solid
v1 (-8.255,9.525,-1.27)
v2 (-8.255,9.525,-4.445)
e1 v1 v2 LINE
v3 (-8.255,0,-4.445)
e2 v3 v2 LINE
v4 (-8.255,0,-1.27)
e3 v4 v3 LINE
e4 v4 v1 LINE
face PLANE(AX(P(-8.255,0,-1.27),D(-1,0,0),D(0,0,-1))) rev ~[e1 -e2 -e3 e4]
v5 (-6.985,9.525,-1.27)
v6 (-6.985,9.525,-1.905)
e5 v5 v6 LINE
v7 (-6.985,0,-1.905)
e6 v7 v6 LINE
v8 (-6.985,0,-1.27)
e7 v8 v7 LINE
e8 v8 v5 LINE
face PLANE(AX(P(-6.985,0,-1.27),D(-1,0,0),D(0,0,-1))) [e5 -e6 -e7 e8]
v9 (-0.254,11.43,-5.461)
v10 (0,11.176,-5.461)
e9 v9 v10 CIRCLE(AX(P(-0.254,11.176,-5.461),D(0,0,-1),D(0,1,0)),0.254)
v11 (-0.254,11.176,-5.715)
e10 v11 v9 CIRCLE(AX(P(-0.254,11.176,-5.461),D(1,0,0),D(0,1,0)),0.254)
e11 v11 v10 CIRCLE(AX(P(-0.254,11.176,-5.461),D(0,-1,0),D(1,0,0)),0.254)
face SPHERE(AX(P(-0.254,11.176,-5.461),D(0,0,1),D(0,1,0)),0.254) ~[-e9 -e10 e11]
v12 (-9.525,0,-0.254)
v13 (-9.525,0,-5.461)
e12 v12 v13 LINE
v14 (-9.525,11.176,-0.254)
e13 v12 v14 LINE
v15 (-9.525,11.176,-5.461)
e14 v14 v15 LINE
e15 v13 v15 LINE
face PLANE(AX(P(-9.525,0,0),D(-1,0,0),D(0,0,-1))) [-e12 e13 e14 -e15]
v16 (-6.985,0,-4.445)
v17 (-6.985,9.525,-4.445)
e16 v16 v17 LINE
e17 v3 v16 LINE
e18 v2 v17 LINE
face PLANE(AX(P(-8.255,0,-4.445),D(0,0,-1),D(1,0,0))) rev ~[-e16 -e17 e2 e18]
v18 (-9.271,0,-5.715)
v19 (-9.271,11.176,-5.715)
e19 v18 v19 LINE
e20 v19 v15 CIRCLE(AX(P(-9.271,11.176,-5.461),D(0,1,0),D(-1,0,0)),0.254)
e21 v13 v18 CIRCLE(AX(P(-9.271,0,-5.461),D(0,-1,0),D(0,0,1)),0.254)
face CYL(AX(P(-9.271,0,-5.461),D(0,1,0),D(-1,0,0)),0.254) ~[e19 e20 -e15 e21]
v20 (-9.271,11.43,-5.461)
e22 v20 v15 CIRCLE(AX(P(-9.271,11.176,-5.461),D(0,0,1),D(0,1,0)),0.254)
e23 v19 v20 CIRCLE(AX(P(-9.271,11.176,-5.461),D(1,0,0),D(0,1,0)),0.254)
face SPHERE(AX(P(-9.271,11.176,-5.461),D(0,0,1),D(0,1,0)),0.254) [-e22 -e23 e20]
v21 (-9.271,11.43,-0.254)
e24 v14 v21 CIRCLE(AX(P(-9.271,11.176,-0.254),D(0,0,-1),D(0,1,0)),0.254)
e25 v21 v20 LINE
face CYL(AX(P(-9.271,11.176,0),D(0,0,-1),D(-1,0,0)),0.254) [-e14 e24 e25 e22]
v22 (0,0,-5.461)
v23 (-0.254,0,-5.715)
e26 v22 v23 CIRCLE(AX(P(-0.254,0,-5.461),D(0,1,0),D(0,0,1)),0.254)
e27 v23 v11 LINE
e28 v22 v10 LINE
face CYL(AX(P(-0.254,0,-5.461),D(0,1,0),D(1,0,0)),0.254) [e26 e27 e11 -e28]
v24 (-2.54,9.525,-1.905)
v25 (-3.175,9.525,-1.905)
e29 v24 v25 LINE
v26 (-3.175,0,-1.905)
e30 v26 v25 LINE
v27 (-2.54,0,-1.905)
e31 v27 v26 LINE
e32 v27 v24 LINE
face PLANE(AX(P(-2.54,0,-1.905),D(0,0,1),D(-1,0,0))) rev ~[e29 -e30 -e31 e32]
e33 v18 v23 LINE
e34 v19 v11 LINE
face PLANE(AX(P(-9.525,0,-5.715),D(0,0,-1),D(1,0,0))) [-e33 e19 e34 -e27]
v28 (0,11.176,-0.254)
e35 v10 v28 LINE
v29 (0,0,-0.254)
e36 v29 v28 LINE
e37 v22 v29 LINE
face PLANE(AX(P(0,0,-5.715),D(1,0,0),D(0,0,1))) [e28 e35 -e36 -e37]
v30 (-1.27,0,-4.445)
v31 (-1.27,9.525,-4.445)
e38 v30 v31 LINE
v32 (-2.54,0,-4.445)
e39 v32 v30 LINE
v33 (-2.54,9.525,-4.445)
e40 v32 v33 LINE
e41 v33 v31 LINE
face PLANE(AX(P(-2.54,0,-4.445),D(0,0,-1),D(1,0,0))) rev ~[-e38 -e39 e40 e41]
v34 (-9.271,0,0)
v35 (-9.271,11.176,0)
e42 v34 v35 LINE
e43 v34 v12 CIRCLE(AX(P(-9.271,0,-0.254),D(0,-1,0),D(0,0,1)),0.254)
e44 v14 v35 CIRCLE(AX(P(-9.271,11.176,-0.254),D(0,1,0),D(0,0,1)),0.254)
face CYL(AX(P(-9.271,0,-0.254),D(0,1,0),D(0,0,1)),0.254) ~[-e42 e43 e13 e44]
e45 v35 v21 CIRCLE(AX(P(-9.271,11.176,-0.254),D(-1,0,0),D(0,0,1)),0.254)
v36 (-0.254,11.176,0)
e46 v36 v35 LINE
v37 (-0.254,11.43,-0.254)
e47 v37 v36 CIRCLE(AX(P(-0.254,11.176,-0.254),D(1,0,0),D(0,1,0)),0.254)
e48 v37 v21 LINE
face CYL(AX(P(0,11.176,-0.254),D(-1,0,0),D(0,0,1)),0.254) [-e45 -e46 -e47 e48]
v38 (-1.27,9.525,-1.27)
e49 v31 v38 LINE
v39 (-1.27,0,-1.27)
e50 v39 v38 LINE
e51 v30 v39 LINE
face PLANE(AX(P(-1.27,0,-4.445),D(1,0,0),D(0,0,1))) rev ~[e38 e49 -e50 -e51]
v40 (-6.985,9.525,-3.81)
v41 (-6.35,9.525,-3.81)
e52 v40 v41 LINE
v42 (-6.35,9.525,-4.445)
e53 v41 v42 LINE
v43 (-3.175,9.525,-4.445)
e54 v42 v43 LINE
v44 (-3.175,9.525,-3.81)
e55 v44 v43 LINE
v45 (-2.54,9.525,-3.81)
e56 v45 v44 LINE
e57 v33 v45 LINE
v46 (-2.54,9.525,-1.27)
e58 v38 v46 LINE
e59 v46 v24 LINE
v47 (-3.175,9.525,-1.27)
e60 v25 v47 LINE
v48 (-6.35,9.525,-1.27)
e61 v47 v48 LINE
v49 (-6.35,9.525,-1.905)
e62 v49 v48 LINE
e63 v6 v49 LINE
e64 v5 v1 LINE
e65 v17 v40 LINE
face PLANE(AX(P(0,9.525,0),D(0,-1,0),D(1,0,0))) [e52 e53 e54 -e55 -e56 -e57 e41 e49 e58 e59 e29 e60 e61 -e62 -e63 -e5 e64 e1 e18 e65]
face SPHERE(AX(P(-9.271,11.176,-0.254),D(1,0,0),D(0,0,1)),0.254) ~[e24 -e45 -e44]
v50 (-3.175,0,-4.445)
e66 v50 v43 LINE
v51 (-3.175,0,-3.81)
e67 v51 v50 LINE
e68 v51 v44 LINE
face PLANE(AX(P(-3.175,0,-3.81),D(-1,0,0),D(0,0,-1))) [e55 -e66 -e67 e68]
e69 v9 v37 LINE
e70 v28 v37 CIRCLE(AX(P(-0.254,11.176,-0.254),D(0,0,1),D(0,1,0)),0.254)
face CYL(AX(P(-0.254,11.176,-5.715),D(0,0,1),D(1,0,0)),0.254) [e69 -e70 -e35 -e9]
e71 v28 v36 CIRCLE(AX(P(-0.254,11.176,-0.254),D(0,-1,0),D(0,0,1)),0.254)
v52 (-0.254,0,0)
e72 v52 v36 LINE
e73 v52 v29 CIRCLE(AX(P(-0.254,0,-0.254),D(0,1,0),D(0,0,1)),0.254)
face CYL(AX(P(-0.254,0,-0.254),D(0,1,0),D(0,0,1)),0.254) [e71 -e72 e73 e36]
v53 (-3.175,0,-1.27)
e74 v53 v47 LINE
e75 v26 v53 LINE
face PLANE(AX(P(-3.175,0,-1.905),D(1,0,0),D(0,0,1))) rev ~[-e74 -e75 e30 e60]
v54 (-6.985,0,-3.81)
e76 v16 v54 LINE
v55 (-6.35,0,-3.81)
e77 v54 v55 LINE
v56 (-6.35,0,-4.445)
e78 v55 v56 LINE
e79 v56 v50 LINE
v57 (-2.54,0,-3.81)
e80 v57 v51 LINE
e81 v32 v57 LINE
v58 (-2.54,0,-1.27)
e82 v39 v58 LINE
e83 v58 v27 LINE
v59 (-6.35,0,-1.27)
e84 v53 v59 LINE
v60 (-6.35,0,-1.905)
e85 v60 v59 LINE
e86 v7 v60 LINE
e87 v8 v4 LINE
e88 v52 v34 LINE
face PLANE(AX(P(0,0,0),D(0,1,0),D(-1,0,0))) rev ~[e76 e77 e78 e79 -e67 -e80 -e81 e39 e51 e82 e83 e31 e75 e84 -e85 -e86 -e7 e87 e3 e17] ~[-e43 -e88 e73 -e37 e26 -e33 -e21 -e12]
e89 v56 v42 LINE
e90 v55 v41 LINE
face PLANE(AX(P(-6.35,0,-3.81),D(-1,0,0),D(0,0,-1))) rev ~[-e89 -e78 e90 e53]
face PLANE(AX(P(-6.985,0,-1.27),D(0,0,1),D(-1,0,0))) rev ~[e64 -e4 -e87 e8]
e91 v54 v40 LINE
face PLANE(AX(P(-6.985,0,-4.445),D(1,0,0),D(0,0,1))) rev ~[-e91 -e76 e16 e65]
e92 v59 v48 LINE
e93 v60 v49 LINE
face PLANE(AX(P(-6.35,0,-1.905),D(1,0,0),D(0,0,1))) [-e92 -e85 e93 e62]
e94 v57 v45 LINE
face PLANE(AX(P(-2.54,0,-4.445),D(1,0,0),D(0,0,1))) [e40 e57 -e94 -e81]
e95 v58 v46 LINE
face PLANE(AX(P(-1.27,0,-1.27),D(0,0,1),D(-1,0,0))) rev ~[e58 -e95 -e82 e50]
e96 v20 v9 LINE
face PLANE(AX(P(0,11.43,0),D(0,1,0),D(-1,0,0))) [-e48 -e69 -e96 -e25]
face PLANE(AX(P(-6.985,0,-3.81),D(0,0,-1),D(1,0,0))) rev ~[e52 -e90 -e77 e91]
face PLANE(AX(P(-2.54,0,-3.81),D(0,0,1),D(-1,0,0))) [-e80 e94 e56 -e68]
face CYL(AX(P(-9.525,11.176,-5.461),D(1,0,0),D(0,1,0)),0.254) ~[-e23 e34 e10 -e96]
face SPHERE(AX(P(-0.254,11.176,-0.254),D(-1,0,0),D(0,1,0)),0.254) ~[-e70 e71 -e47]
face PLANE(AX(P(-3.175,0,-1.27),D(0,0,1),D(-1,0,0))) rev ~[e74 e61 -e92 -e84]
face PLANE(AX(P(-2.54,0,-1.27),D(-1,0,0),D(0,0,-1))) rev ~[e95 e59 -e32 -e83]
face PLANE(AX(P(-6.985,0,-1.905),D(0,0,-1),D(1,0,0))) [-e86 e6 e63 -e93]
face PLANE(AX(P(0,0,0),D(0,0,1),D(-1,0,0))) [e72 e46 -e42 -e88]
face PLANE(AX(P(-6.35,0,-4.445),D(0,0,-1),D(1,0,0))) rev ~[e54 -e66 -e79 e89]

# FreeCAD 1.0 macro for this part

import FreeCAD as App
import Part
import Sketcher

V = App.Vector
Q = App.Units.Quantity


def edges_at(feature, points):
    """Names of the edges that pass closest to the given points."""
    edges = feature.Shape.Edges
    near = lambda p: min(range(len(edges)), key=lambda i: edges[i].distToShape(Part.Vertex(*p))[0])
    return sorted({f"Edge{near(p) + 1}" for p in points})

doc = App.newDocument("Part")
body = doc.addObject("PartDesign::Body", "Body")

# Sketch on XZ plane
sketch1 = doc.addObject("Sketcher::SketchObject", "Sketch")
body.addObject(sketch1)
sketch1.AttachmentSupport = (doc.XZ_Plane, [""])
sketch1.MapMode = "FlatFace"
sketch1.addGeometry([
    Part.LineSegment(V(-10, 0, 0), V(0, 0, 0)),
    Part.LineSegment(V(0, 0, 0), V(0, -6, 0)),
    Part.LineSegment(V(0, -6, 0), V(-10, -6, 0)),
    Part.LineSegment(V(-10, -6, 0), V(-10, 0, 0)),
], False)
sketch1.addConstraint([
    Sketcher.Constraint("Coincident", 0, 2, 1, 1),
    Sketcher.Constraint("Coincident", 1, 2, 2, 1),
    Sketcher.Constraint("Coincident", 2, 2, 3, 1),
    Sketcher.Constraint("Coincident", 3, 2, 0, 1),
    Sketcher.Constraint("Horizontal", 0),
    Sketcher.Constraint("Vertical", 1),
    Sketcher.Constraint("Horizontal", 2),
    Sketcher.Constraint("Vertical", 3),
    Sketcher.Constraint("Coincident", 0, 2, -1, 1),
    Sketcher.Constraint("DistanceX", 0, 1, 0, 2, Q("0.375 in")),
    Sketcher.Constraint("DistanceY", 1, 2, 1, 1, Q("0.225 in")),
])
pad1 = doc.addObject("PartDesign::Pad", "Pad")
body.addObject(pad1)
pad1.Profile = sketch1
pad1.Length = Q("0.45 in")
pad1.Reversed = True

# Sketch on XZ plane
sketch2 = doc.addObject("Sketcher::SketchObject", "Sketch001")
body.addObject(sketch2)
sketch2.AttachmentSupport = (doc.XZ_Plane, [""])
sketch2.MapMode = "FlatFace"
sketch2.addGeometry([
    Part.LineSegment(V(-2.5, -4.4, 0), V(-1.3, -4.4, 0)),  # 0
    Part.LineSegment(V(-1.3, -4.4, 0), V(-1.3, -1.3, 0)),  # 1
    Part.LineSegment(V(-1.3, -1.3, 0), V(-2.5, -1.3, 0)),  # 2
    Part.LineSegment(V(-2.5, -1.3, 0), V(-2.5, -1.9, 0)),  # 3
    Part.LineSegment(V(-2.5, -1.9, 0), V(-3.2, -1.9, 0)),  # 4
    Part.LineSegment(V(-3.2, -1.9, 0), V(-3.2, -1.3, 0)),  # 5
    Part.LineSegment(V(-3.2, -1.3, 0), V(-6.3, -1.3, 0)),  # 6
    Part.LineSegment(V(-6.3, -1.3, 0), V(-6.3, -1.9, 0)),  # 7
    Part.LineSegment(V(-6.3, -1.9, 0), V(-7, -1.9, 0)),  # 8
    Part.LineSegment(V(-7, -1.9, 0), V(-7, -1.3, 0)),  # 9
    Part.LineSegment(V(-7, -1.3, 0), V(-8.3, -1.3, 0)),  # 10
    Part.LineSegment(V(-8.3, -1.3, 0), V(-8.3, -4.4, 0)),  # 11
    Part.LineSegment(V(-8.3, -4.4, 0), V(-7, -4.4, 0)),  # 12
    Part.LineSegment(V(-7, -4.4, 0), V(-7, -3.8, 0)),  # 13
    Part.LineSegment(V(-7, -3.8, 0), V(-6.3, -3.8, 0)),  # 14
    Part.LineSegment(V(-6.3, -3.8, 0), V(-6.3, -4.4, 0)),  # 15
    Part.LineSegment(V(-6.3, -4.4, 0), V(-3.2, -4.4, 0)),  # 16
    Part.LineSegment(V(-3.2, -4.4, 0), V(-3.2, -3.8, 0)),  # 17
    Part.LineSegment(V(-3.2, -3.8, 0), V(-2.5, -3.8, 0)),  # 18
    Part.LineSegment(V(-2.5, -3.8, 0), V(-2.5, -4.4, 0)),  # 19
], False)
sketch2.addConstraint([
    Sketcher.Constraint("Coincident", 0, 2, 1, 1),
    Sketcher.Constraint("Coincident", 1, 2, 2, 1),
    Sketcher.Constraint("Coincident", 2, 2, 3, 1),
    Sketcher.Constraint("Coincident", 3, 2, 4, 1),
    Sketcher.Constraint("Coincident", 4, 2, 5, 1),
    Sketcher.Constraint("Coincident", 5, 2, 6, 1),
    Sketcher.Constraint("Coincident", 6, 2, 7, 1),
    Sketcher.Constraint("Coincident", 7, 2, 8, 1),
    Sketcher.Constraint("Coincident", 8, 2, 9, 1),
    Sketcher.Constraint("Coincident", 9, 2, 10, 1),
    Sketcher.Constraint("Coincident", 10, 2, 11, 1),
    Sketcher.Constraint("Coincident", 11, 2, 12, 1),
    Sketcher.Constraint("Coincident", 12, 2, 13, 1),
    Sketcher.Constraint("Coincident", 13, 2, 14, 1),
    Sketcher.Constraint("Coincident", 14, 2, 15, 1),
    Sketcher.Constraint("Coincident", 15, 2, 16, 1),
    Sketcher.Constraint("Coincident", 16, 2, 17, 1),
    Sketcher.Constraint("Coincident", 17, 2, 18, 1),
    Sketcher.Constraint("Coincident", 18, 2, 19, 1),
    Sketcher.Constraint("Coincident", 19, 2, 0, 1),
    Sketcher.Constraint("Horizontal", 0),
    Sketcher.Constraint("Vertical", 1),
    Sketcher.Constraint("Horizontal", 2),
    Sketcher.Constraint("Vertical", 3),
    Sketcher.Constraint("Horizontal", 4),
    Sketcher.Constraint("Vertical", 5),
    Sketcher.Constraint("Horizontal", 6),
    Sketcher.Constraint("Vertical", 7),
    Sketcher.Constraint("Horizontal", 8),
    Sketcher.Constraint("Vertical", 9),
    Sketcher.Constraint("Horizontal", 10),
    Sketcher.Constraint("Vertical", 11),
    Sketcher.Constraint("Horizontal", 12),
    Sketcher.Constraint("Vertical", 13),
    Sketcher.Constraint("Horizontal", 14),
    Sketcher.Constraint("Vertical", 15),
    Sketcher.Constraint("Horizontal", 16),
    Sketcher.Constraint("Vertical", 17),
    Sketcher.Constraint("Horizontal", 18),
    Sketcher.Constraint("Vertical", 19),
    Sketcher.Constraint("Horizontal", 2, 2, 5, 2),
    Sketcher.Constraint("Horizontal", 4, 2, 7, 2),
    Sketcher.Constraint("Horizontal", 6, 2, 9, 2),
    Sketcher.Constraint("Horizontal", 0, 2, 11, 2),
    Sketcher.Constraint("Horizontal", 12, 2, 15, 2),
    Sketcher.Constraint("Horizontal", 14, 2, 17, 2),
    Sketcher.Constraint("Vertical", 9, 2, 12, 2),
    Sketcher.Constraint("Vertical", 7, 2, 14, 2),
    Sketcher.Constraint("Vertical", 5, 2, 16, 2),
    Sketcher.Constraint("Vertical", 3, 2, 18, 2),
    Sketcher.Constraint("Equal", 4, 8),
    Sketcher.Constraint("Equal", 2, 10),
    Sketcher.Constraint("Equal", 16, 1),
    Sketcher.Constraint("Equal", 18, 3),
    Sketcher.Constraint("Equal", 9, 13),
    Sketcher.Constraint("DistanceX", 0, 1, 0, 2, Q("0.05 in")),
    Sketcher.Constraint("DistanceX", 2, 2, -1, 1, Q("0.1 in")),
    Sketcher.Constraint("DistanceY", 0, 2, 3, 2, Q("0.1 in")),
    Sketcher.Constraint("DistanceX", 6, 2, 1, 2, Q("0.2 in")),
    Sketcher.Constraint("DistanceY", 1, 2, -1, 1, Q("0.05 in")),
])
pocket1 = doc.addObject("PartDesign::Pocket", "Pocket")
body.addObject(pocket1)
pocket1.Profile = sketch2
pocket1.Length = Q("0.375 in")
doc.recompute()

fillet = doc.addObject("PartDesign::Fillet", "Fillet")
body.addObject(fillet)
fillet.Base = (pocket1, edges_at(pocket1, [
    (-4.763, 11.43, 0),
    (-9.525, 5.715, 0),
    (-9.525, 11.43, -2.857),
    (0, 11.43, -2.857),
    (-4.763, 11.43, -5.715),
    (-9.525, 5.715, -5.715),
    (0, 5.715, 0),
    (0, 5.715, -5.715),
]))
fillet.Radius = Q("0.01 in")

doc.recompute()
